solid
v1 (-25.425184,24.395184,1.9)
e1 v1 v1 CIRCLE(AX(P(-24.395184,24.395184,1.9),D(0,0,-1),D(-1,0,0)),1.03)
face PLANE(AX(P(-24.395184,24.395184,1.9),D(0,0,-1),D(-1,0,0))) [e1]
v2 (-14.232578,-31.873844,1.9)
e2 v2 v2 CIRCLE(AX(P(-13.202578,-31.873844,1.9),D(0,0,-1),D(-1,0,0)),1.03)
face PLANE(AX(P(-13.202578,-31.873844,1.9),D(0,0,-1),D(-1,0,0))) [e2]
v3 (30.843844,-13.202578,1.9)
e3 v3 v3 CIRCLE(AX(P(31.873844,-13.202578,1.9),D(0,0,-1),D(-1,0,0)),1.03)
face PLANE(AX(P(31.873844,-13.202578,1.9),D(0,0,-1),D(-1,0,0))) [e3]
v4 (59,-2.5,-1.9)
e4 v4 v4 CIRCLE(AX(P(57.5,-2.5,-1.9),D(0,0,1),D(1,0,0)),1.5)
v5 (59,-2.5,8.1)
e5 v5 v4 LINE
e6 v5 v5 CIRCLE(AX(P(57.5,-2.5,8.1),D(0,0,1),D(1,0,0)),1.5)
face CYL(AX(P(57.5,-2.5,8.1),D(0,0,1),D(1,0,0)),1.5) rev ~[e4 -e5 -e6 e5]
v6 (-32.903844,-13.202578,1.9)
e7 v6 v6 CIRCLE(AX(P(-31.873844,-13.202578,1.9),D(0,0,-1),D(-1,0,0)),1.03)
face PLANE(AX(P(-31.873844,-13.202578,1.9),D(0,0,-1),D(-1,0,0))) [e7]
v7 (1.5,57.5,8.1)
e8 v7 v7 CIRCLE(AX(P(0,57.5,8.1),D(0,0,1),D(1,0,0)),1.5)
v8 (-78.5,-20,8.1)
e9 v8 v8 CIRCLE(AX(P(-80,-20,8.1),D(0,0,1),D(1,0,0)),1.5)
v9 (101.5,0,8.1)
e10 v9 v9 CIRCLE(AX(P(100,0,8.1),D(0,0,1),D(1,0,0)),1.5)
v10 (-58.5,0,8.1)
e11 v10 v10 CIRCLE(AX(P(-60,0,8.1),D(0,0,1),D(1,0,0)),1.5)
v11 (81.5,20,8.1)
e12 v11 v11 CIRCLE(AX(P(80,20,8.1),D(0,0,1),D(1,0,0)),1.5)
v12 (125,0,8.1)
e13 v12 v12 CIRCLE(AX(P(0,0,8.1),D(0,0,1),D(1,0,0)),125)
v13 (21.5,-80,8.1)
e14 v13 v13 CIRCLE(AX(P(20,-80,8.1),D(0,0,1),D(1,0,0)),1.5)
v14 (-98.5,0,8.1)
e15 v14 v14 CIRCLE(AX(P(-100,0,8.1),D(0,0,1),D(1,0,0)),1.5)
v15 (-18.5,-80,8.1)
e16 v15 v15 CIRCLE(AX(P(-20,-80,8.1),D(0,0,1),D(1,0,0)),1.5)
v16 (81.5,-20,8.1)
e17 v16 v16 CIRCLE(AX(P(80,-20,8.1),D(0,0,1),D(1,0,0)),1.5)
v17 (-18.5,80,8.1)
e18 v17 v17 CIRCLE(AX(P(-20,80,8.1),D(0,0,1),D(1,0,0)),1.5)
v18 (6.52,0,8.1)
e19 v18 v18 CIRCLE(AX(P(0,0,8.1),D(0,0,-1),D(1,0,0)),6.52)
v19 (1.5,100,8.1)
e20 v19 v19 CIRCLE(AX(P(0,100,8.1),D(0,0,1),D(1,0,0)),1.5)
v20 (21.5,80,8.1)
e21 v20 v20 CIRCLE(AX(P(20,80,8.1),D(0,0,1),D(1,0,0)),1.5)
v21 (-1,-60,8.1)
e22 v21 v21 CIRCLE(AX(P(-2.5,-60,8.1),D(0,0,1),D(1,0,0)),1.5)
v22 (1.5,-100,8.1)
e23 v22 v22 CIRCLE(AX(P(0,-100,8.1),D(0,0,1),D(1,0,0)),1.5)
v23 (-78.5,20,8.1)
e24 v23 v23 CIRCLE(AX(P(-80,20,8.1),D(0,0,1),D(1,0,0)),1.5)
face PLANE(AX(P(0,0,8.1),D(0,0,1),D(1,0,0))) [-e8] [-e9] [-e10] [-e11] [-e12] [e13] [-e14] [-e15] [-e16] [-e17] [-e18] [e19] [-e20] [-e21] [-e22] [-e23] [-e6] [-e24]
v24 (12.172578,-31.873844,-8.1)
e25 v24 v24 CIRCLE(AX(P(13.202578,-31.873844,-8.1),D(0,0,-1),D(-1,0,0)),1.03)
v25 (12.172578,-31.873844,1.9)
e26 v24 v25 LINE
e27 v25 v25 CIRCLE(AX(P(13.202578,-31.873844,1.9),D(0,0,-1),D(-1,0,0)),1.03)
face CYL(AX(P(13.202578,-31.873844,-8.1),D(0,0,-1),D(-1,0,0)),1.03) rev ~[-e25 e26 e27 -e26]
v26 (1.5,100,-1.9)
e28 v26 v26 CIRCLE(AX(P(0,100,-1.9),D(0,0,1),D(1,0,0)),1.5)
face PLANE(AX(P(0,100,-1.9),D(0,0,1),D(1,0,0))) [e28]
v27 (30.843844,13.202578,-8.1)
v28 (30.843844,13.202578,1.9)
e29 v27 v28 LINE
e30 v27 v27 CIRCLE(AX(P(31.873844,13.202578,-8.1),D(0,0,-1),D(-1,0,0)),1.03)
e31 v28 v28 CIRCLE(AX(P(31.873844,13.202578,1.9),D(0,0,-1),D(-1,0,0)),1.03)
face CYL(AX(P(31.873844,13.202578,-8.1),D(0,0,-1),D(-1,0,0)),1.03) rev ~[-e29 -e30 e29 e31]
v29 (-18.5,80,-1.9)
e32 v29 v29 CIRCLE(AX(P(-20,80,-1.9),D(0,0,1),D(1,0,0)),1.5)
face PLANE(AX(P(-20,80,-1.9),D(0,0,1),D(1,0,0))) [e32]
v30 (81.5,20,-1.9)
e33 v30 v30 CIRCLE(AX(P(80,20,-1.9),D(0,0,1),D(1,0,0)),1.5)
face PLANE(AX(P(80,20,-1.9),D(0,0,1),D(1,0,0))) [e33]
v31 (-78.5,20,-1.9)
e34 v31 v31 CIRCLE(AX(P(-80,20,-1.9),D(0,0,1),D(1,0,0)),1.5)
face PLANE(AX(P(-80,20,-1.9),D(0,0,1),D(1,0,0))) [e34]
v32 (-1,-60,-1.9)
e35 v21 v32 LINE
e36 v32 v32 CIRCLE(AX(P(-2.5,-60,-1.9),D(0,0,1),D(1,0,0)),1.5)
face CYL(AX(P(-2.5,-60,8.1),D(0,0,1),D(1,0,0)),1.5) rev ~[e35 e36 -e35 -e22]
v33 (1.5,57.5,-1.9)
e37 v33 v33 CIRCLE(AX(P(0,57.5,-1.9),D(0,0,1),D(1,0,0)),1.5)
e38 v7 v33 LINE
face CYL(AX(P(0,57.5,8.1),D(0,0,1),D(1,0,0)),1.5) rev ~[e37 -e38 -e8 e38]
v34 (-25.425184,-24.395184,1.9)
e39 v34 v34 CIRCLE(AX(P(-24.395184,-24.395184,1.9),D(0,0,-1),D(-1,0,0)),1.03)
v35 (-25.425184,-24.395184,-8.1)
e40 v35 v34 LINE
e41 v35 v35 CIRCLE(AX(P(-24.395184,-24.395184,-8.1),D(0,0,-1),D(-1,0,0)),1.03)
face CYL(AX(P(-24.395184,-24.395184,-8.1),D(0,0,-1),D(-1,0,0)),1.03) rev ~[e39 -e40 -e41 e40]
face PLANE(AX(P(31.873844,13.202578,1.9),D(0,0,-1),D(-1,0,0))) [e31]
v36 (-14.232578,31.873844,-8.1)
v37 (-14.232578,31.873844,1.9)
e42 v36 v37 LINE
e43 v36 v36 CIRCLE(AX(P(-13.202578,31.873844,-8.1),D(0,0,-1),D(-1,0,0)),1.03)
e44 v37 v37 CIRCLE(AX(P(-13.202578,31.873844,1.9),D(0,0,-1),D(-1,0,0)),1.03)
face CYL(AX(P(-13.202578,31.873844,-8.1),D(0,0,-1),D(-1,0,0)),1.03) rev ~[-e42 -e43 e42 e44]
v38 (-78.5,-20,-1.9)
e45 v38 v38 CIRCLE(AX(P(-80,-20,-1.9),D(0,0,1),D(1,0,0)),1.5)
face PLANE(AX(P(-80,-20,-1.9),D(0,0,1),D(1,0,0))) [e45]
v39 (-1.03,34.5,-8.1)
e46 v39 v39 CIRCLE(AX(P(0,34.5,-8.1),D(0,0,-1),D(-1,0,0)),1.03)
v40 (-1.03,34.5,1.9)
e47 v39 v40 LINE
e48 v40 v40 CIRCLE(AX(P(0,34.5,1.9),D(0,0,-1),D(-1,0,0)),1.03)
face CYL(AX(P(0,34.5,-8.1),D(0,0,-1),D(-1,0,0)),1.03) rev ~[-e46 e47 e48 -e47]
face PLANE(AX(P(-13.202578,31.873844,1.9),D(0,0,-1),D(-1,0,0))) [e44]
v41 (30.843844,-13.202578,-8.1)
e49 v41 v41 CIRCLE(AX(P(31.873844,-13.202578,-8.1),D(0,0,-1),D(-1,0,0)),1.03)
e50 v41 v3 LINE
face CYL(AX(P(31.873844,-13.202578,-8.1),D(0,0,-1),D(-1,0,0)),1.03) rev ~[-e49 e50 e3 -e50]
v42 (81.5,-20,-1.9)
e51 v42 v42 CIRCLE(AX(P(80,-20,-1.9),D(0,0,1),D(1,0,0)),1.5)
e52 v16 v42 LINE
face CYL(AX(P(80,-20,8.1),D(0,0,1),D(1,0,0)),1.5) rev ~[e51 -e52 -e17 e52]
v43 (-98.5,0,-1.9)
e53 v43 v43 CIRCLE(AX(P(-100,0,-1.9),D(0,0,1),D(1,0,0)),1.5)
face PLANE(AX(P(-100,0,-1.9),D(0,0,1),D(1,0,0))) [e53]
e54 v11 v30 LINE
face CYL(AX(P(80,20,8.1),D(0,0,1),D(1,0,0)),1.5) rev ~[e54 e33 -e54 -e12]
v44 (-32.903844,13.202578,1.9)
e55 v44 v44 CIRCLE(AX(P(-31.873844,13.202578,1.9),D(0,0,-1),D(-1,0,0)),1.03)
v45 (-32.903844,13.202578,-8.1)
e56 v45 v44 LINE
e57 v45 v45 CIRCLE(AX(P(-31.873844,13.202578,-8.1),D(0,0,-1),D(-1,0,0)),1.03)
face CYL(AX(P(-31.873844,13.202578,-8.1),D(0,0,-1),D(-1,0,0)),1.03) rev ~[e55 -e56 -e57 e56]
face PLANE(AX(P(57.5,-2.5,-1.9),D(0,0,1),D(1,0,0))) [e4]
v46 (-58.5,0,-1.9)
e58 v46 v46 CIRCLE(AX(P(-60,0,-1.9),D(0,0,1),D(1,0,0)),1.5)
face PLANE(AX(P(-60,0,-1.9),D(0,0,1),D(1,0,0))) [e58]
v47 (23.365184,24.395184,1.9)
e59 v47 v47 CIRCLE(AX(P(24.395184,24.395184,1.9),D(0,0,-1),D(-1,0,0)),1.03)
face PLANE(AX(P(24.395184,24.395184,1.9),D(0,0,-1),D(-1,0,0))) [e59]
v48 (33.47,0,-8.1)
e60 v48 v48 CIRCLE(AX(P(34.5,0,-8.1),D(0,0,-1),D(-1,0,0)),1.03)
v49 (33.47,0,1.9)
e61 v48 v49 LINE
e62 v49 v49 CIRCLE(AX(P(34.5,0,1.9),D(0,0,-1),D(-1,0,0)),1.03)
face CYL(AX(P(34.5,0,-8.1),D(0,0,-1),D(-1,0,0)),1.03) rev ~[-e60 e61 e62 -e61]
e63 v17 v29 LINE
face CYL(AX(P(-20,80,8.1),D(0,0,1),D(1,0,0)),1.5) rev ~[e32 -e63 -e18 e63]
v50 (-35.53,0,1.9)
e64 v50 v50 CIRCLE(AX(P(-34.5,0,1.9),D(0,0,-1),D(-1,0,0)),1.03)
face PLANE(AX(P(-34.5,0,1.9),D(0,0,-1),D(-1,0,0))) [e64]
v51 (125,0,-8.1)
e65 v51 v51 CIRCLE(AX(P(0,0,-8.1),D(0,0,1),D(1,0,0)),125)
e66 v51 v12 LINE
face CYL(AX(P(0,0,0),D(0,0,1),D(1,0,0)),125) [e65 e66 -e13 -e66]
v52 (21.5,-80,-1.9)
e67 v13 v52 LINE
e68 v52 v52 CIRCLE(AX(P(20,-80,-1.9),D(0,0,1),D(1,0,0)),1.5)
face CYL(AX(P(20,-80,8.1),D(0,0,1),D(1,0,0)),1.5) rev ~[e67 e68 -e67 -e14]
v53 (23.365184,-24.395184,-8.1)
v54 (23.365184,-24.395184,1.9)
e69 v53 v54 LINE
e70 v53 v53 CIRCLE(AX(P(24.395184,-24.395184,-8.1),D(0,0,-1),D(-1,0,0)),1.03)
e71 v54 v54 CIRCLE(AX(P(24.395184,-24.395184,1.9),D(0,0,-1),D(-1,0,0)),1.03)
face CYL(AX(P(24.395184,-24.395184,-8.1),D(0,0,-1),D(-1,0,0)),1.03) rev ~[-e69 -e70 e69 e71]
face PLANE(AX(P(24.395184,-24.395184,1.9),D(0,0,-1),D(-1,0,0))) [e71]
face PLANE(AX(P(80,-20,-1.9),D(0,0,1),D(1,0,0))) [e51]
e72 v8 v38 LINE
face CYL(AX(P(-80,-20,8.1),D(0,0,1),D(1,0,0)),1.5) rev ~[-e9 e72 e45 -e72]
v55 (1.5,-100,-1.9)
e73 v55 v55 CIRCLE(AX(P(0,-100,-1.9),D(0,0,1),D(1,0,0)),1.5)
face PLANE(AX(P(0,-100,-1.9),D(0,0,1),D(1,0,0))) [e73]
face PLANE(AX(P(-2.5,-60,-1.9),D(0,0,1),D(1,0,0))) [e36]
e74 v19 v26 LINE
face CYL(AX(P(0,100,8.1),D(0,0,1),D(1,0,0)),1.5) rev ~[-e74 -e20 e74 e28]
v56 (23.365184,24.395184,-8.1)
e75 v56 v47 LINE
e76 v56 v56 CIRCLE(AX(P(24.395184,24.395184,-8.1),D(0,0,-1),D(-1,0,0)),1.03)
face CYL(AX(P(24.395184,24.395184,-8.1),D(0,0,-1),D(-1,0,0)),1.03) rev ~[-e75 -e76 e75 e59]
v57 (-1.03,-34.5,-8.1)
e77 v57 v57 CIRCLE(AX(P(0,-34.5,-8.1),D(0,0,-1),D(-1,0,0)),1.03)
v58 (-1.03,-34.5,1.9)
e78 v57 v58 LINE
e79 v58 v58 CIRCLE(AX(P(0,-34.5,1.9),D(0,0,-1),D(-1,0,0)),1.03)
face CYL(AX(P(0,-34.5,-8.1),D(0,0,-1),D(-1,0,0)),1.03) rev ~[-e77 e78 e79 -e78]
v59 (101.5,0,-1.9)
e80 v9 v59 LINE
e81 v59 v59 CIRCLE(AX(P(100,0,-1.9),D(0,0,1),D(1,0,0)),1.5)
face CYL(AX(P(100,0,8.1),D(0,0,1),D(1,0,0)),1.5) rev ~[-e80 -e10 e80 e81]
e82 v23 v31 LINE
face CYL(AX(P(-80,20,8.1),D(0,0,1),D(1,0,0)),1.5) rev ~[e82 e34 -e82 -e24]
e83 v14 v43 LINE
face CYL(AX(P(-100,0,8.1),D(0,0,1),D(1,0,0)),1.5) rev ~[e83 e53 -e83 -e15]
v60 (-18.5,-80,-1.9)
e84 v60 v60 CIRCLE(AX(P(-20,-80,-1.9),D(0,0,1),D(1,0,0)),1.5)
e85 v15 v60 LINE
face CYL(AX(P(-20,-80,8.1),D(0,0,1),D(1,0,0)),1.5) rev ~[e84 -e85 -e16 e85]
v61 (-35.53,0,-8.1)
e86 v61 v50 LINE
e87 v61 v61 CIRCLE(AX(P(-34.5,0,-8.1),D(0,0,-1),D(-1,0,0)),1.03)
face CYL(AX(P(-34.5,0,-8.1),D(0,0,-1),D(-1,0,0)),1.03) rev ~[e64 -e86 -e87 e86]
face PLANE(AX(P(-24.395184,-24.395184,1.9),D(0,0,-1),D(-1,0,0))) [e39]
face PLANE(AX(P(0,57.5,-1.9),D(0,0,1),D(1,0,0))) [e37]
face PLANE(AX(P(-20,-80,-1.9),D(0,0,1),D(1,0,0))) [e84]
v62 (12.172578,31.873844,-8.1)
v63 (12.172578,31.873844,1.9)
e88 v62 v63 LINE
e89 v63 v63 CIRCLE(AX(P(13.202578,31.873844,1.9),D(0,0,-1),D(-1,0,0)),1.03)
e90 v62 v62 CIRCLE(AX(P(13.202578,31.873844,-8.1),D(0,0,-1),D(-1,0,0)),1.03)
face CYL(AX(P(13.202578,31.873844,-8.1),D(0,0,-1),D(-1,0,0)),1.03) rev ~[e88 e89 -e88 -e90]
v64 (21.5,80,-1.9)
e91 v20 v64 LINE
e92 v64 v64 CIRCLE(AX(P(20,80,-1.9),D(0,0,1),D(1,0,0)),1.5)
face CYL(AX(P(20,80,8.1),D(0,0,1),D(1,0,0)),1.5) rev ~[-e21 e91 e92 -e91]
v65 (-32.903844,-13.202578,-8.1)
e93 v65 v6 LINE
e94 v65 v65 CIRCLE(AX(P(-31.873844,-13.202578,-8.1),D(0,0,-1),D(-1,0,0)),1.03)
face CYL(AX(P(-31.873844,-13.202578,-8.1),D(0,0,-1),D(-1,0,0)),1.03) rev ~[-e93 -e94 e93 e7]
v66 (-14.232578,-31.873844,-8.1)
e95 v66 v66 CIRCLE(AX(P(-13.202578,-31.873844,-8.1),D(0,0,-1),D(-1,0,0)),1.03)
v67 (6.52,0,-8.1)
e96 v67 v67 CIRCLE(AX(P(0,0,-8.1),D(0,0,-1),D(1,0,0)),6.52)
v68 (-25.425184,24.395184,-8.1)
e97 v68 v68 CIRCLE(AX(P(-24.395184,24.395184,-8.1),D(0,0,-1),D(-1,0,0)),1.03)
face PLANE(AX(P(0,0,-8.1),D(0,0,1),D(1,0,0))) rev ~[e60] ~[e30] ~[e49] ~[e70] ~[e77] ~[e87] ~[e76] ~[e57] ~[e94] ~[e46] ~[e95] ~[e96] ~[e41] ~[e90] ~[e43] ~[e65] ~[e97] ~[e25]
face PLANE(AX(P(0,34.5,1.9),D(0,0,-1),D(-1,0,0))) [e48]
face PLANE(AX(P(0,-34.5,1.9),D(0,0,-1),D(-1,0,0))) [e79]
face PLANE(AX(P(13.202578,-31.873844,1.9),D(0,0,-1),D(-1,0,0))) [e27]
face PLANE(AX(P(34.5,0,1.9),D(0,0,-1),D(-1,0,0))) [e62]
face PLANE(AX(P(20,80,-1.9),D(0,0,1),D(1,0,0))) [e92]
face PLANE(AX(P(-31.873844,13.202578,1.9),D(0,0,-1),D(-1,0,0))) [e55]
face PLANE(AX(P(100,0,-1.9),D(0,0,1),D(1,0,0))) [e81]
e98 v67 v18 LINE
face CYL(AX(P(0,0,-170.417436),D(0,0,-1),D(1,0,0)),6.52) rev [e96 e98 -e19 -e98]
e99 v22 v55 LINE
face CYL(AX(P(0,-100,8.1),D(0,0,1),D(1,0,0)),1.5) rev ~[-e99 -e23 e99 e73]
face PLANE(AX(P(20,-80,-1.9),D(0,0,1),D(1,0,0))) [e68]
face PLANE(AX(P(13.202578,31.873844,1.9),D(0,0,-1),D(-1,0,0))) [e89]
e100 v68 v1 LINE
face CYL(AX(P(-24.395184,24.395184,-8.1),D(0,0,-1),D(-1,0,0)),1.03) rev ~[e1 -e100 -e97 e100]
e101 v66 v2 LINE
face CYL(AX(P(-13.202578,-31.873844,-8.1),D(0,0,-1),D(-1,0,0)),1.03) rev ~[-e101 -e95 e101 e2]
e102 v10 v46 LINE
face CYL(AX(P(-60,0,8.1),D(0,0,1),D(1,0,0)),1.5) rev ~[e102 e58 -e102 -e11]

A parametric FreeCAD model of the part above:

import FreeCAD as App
import Part
import Sketcher

doc = App.newDocument("Part")
body = doc.addObject("PartDesign::Body", "Body")

sketch1 = body.newObject("Sketcher::SketchObject", "Sketch")
sketch1.AttachmentSupport = (doc.getObject("XY_Plane"), [""])
sketch1.MapMode = "FlatFace"
sketch1.addGeometry(Part.Circle(App.Vector(0, 0, 0), App.Vector(0, 0, 1), 125), False)
sketch1.addConstraint([
    Sketcher.Constraint("Coincident", 0, 3, -1, 1),
    Sketcher.Constraint("Diameter", 0, 250.0),
])
pad1 = body.newObject("PartDesign::Pad", "Pad")
pad1.Profile = sketch1
pad1.Length = 16.2
pad1.Midplane = True

sketch2 = body.newObject("Sketcher::SketchObject", "Sketch001")
sketch2.AttachmentSupport = (doc.getObject("XY_Plane"), [""])
sketch2.MapMode = "FlatFace"
sketch2.AttachmentOffset = App.Placement(App.Vector(0, 0, 8.1), App.Rotation())
sketch2.addGeometry(Part.Circle(App.Vector(0, 0, 0), App.Vector(0, 0, 1), 6.52), False)
sketch2.addConstraint([
    Sketcher.Constraint("Coincident", 0, 3, -1, 1),
    Sketcher.Constraint("Diameter", 0, 13.04),
])
pocket1 = body.newObject("PartDesign::Pocket", "Pocket")
pocket1.Profile = sketch2
pocket1.Type = "ThroughAll"
pocket1.Midplane = True

sketch3 = body.newObject("Sketcher::SketchObject", "Sketch002")
sketch3.AttachmentSupport = (doc.getObject("XY_Plane"), [""])
sketch3.MapMode = "FlatFace"
sketch3.AttachmentOffset = App.Placement(App.Vector(0, 0, -8.1), App.Rotation())
sketch3.addGeometry([
    Part.Circle(App.Vector(0, 34.5, 0), App.Vector(0, 0, 1), 1.03),
    Part.Circle(App.Vector(-13.202578, 31.873844, 0), App.Vector(0, 0, 1), 1.03),
    Part.Circle(App.Vector(-24.395184, 24.395184, 0), App.Vector(0, 0, 1), 1.03),
    Part.Circle(App.Vector(-31.873844, 13.202578, 0), App.Vector(0, 0, 1), 1.03),
    Part.Circle(App.Vector(-34.5, 0, 0), App.Vector(0, 0, 1), 1.03),
    Part.Circle(App.Vector(-31.873844, -13.202578, 0), App.Vector(0, 0, 1), 1.03),
    Part.Circle(App.Vector(-24.395184, -24.395184, 0), App.Vector(0, 0, 1), 1.03),
    Part.Circle(App.Vector(-13.202578, -31.873844, 0), App.Vector(0, 0, 1), 1.03),
    Part.Circle(App.Vector(0, -34.5, 0), App.Vector(0, 0, 1), 1.03),
    Part.Circle(App.Vector(13.202578, -31.873844, 0), App.Vector(0, 0, 1), 1.03),
    Part.Circle(App.Vector(24.395184, -24.395184, 0), App.Vector(0, 0, 1), 1.03),
    Part.Circle(App.Vector(31.873844, -13.202578, 0), App.Vector(0, 0, 1), 1.03),
    Part.Circle(App.Vector(34.5, 0, 0), App.Vector(0, 0, 1), 1.03),
    Part.Circle(App.Vector(31.873844, 13.202578, 0), App.Vector(0, 0, 1), 1.03),
    Part.Circle(App.Vector(24.395184, 24.395184, 0), App.Vector(0, 0, 1), 1.03),
    Part.Circle(App.Vector(13.202578, 31.873844, 0), App.Vector(0, 0, 1), 1.03),
], False)
sketch3.addConstraint([
    Sketcher.Constraint("Equal", 0, 1),
    Sketcher.Constraint("Equal", 1, 2),
    Sketcher.Constraint("Equal", 2, 3),
    Sketcher.Constraint("Equal", 3, 4),
    Sketcher.Constraint("Equal", 4, 5),
    Sketcher.Constraint("Equal", 5, 6),
    Sketcher.Constraint("Equal", 6, 7),
    Sketcher.Constraint("Equal", 7, 8),
    Sketcher.Constraint("Equal", 8, 9),
    Sketcher.Constraint("Equal", 9, 10),
    Sketcher.Constraint("Equal", 10, 11),
    Sketcher.Constraint("Equal", 11, 12),
    Sketcher.Constraint("Equal", 12, 13),
    Sketcher.Constraint("Equal", 13, 14),
    Sketcher.Constraint("Equal", 14, 15),
    Sketcher.Constraint("Symmetric", 0, 3, 8, 3, -1, 1),
    Sketcher.Constraint("Symmetric", 1, 3, 9, 3, -1, 1),
    Sketcher.Constraint("Symmetric", 2, 3, 10, 3, -1, 1),
    Sketcher.Constraint("Symmetric", 3, 3, 11, 3, -1, 1),
    Sketcher.Constraint("Symmetric", 4, 3, 12, 3, -1, 1),
    Sketcher.Constraint("Symmetric", 5, 3, 13, 3, -1, 1),
    Sketcher.Constraint("Symmetric", 6, 3, 14, 3, -1, 1),
    Sketcher.Constraint("Symmetric", 7, 3, 15, 3, -1, 1),
    Sketcher.Constraint("Symmetric", 7, 3, 9, 3, -2),
    Sketcher.Constraint("Symmetric", 6, 3, 10, 3, -2),
    Sketcher.Constraint("Symmetric", 5, 3, 11, 3, -2),
    Sketcher.Constraint("PointOnObject", 0, 3, -2),
    Sketcher.Constraint("PointOnObject", 4, 3, -1),
    Sketcher.Constraint("Diameter", 0, 2.06),
    Sketcher.Constraint("DistanceY", -1, 1, 0, 3, 34.5),
    Sketcher.Constraint("DistanceX", 4, 3, -1, 1, 34.5),
    Sketcher.Constraint("DistanceX", 1, 3, -1, 1, 13.202578),
    Sketcher.Constraint("DistanceY", -1, 1, 3, 3, 13.202578),
    Sketcher.Constraint("DistanceY", 2, 3, 1, 3, 7.47866),
    Sketcher.Constraint("DistanceX", 3, 3, 2, 3, 7.47866),
    Sketcher.Constraint("DistanceY", -1, 1, 1, 3, 31.873844),
    Sketcher.Constraint("DistanceX", 2, 3, -1, 1, 24.395184),
])
pocket2 = body.newObject("PartDesign::Pocket", "Pocket001")
pocket2.Profile = sketch3
pocket2.Length = 10
pocket2.Reversed = True

sketch4 = body.newObject("Sketcher::SketchObject", "Sketch003")
sketch4.AttachmentSupport = (doc.getObject("XY_Plane"), [""])
sketch4.MapMode = "FlatFace"
sketch4.AttachmentOffset = App.Placement(App.Vector(0, 0, 8.1), App.Rotation())
sketch4.addGeometry([
    Part.Circle(App.Vector(-100, 0, 0), App.Vector(0, 0, 1), 1.5),
    Part.Circle(App.Vector(-80, 20, 0), App.Vector(0, 0, 1), 1.5),
    Part.Circle(App.Vector(-60, 0, 0), App.Vector(0, 0, 1), 1.5),
    Part.Circle(App.Vector(-80, -20, 0), App.Vector(0, 0, 1), 1.5),
    Part.Circle(App.Vector(0, 57.5, 0), App.Vector(0, 0, 1), 1.5),
    Part.Circle(App.Vector(57.5, -2.5, 0), App.Vector(0, 0, 1), 1.5),
    Part.Circle(App.Vector(-2.5, -60, 0), App.Vector(0, 0, 1), 1.5),
    Part.Circle(App.Vector(-20, 80, 0), App.Vector(0, 0, 1), 1.5),
    Part.Circle(App.Vector(80, 20, 0), App.Vector(0, 0, 1), 1.5),
    Part.Circle(App.Vector(20, -80, 0), App.Vector(0, 0, 1), 1.5),
    Part.Circle(App.Vector(20, 80, 0), App.Vector(0, 0, 1), 1.5),
    Part.Circle(App.Vector(0, 100, 0), App.Vector(0, 0, 1), 1.5),
    Part.Circle(App.Vector(80, -20, 0), App.Vector(0, 0, 1), 1.5),
    Part.Circle(App.Vector(100, 0, 0), App.Vector(0, 0, 1), 1.5),
    Part.Circle(App.Vector(-20, -80, 0), App.Vector(0, 0, 1), 1.5),
    Part.Circle(App.Vector(0, -100, 0), App.Vector(0, 0, 1), 1.5),
], False)
sketch4.addConstraint([
    Sketcher.Constraint("Equal", 0, 1),
    Sketcher.Constraint("Equal", 1, 2),
    Sketcher.Constraint("Equal", 2, 3),
    Sketcher.Constraint("Equal", 3, 4),
    Sketcher.Constraint("Equal", 4, 5),
    Sketcher.Constraint("Equal", 5, 6),
    Sketcher.Constraint("Equal", 6, 7),
    Sketcher.Constraint("Equal", 7, 8),
    Sketcher.Constraint("Equal", 8, 9),
    Sketcher.Constraint("Equal", 9, 10),
    Sketcher.Constraint("Equal", 10, 11),
    Sketcher.Constraint("Equal", 11, 12),
    Sketcher.Constraint("Equal", 12, 13),
    Sketcher.Constraint("Equal", 13, 14),
    Sketcher.Constraint("Equal", 14, 15),
    Sketcher.Constraint("Symmetric", 3, 3, 8, 3, -1, 1),
    Sketcher.Constraint("Symmetric", 7, 3, 9, 3, -1, 1),
    Sketcher.Constraint("Symmetric", 1, 3, 12, 3, -1, 1),
    Sketcher.Constraint("Symmetric", 0, 3, 13, 3, -1, 1),
    Sketcher.Constraint("Symmetric", 10, 3, 14, 3, -1, 1),
    Sketcher.Constraint("Symmetric", 11, 3, 15, 3, -1, 1),
    Sketcher.Constraint("Symmetric", 1, 3, 8, 3, -2),
    Sketcher.Constraint("Symmetric", 7, 3, 10, 3, -2),
    Sketcher.Constraint("PointOnObject", 0, 3, -1),
    Sketcher.Constraint("PointOnObject", 2, 3, -1),
    Sketcher.Constraint("PointOnObject", 4, 3, -2),
    Sketcher.Constraint("PointOnObject", 11, 3, -2),
    Sketcher.Constraint("Diameter", 0, 3.0),
    Sketcher.Constraint("DistanceX", 0, 3, -1, 1, 100.0),
    Sketcher.Constraint("DistanceX", 1, 3, -1, 1, 80.0),
    Sketcher.Constraint("DistanceY", -1, 1, 1, 3, 20.0),
    Sketcher.Constraint("DistanceX", 2, 3, -1, 1, 60.0),
    Sketcher.Constraint("DistanceY", 6, 3, -1, 1, 60.0),
    Sketcher.Constraint("DistanceX", 7, 3, -1, 1, 20.0),
    Sketcher.Constraint("DistanceY", -1, 1, 7, 3, 80.0),
    Sketcher.Constraint("DistanceY", -1, 1, 11, 3, 100.0),
    Sketcher.Constraint("DistanceY", 5, 3, 4, 3, 60.0),
    Sketcher.Constraint("DistanceX", 6, 3, 5, 3, 60.0),
    Sketcher.Constraint("DistanceY", -1, 1, 4, 3, 57.5),
    Sketcher.Constraint("DistanceX", -1, 1, 5, 3, 57.5),
])
pocket3 = body.newObject("PartDesign::Pocket", "Pocket002")
pocket3.Profile = sketch4
pocket3.Length = 10

doc.recompute()
